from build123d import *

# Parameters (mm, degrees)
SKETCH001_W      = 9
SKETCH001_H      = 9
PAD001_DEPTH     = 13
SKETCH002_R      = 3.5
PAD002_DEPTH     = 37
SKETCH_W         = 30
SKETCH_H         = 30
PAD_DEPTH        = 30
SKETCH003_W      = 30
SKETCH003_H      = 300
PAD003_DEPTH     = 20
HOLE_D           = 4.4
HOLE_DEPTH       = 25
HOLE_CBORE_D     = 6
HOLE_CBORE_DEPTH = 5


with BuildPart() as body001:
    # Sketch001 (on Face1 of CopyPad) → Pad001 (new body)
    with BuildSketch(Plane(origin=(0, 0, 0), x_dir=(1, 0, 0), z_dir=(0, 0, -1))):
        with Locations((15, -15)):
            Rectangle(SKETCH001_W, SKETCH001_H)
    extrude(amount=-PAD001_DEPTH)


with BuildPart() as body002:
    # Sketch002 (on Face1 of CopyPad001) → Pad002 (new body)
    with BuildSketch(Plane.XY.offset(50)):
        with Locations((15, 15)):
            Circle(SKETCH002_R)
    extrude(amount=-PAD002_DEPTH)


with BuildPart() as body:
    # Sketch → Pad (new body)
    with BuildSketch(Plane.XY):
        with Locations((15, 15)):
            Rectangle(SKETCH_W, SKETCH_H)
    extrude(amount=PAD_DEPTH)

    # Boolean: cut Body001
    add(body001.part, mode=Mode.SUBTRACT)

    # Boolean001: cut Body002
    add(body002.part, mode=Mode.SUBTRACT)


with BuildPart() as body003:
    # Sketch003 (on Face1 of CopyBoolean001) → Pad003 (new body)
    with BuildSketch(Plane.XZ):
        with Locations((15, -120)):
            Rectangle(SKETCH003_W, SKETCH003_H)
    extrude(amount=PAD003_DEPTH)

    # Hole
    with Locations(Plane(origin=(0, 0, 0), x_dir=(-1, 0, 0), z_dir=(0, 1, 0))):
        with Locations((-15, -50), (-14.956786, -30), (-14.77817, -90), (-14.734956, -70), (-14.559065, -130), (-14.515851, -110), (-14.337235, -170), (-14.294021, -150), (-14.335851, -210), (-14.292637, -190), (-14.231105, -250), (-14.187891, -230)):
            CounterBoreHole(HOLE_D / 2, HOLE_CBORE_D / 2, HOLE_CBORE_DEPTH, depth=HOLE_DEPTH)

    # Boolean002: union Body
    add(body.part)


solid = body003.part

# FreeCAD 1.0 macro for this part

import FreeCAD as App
import Part
import Sketcher
Q = App.Units.Quantity


def add_polygon(sketch, points):
    """Adds a closed chain of lines whose ends are joined by coincident constraints."""
    first, n = sketch.GeometryCount, len(points)
    for a, b in zip(points, points[1:] + points[:1]):
        sketch.addGeometry(Part.LineSegment(App.Vector(*a, 0), App.Vector(*b, 0)), False)
    for i in range(n):
        sketch.addConstraint(Sketcher.Constraint("Coincident", first + i, 2, first + (i + 1) % n, 1))

doc = App.newDocument("Part")
body = doc.addObject("PartDesign::Body", "Body")

# Sketch on XY plane
sketch1 = doc.addObject("Sketcher::SketchObject", "Sketch")
body.addObject(sketch1)
sketch1.AttachmentSupport = (doc.XY_Plane, [""])
sketch1.MapMode = "FlatFace"
add_polygon(sketch1, [(10.5, 10.5), (10.5, 19.5), (19.5, 19.5), (19.5, 10.5)])  # lines 0-3
sketch1.addConstraint(Sketcher.Constraint("Vertical", 0))
sketch1.addConstraint(Sketcher.Constraint("Horizontal", 1))
sketch1.addConstraint(Sketcher.Constraint("Vertical", 2))
sketch1.addConstraint(Sketcher.Constraint("Horizontal", 3))
sketch1.addConstraint(Sketcher.Constraint("Equal", 3, 0))
sketch1.addConstraint(Sketcher.Constraint("DistanceX", 1, 1, 1, 2, Q("9 mm")))
sketch1.addConstraint(Sketcher.Constraint("DistanceX", -1, 1, 0, 2, Q("10.5 mm")))
sketch1.addConstraint(Sketcher.Constraint("DistanceY", -1, 1, 0, 2, Q("19.5 mm")))
pad1 = doc.addObject("PartDesign::Pad", "Pad")
body.addObject(pad1)
pad1.Profile = sketch1
pad1.Length = 13
body2 = doc.addObject("PartDesign::Body", "Body001")

# Sketch on XY plane
sketch2 = doc.addObject("Sketcher::SketchObject", "Sketch001")
body2.addObject(sketch2)
sketch2.AttachmentSupport = (doc.getObject("XY_Plane001"), [""])
sketch2.MapMode = "FlatFace"
sketch2.AttachmentOffset = App.Placement(App.Vector(0, 0, 50), App.Rotation())
sketch2.addGeometry(Part.Circle(App.Vector(15, 15, 0), App.Vector(0, 0, 1), 3.5), False)
sketch2.addConstraint(Sketcher.Constraint("Diameter", 0, Q("7 mm")))
sketch2.addConstraint(Sketcher.Constraint("DistanceX", -1, 1, 0, 3, Q("15 mm")))
sketch2.addConstraint(Sketcher.Constraint("DistanceY", -1, 1, 0, 3, Q("15 mm")))
pad2 = doc.addObject("PartDesign::Pad", "Pad001")
body2.addObject(pad2)
pad2.Profile = sketch2
pad2.Length = 37
pad2.Reversed = True
body3 = doc.addObject("PartDesign::Body", "Body002")

# Sketch on XY plane
sketch3 = doc.addObject("Sketcher::SketchObject", "Sketch002")
body3.addObject(sketch3)
sketch3.AttachmentSupport = (doc.getObject("XY_Plane002"), [""])
sketch3.MapMode = "FlatFace"
add_polygon(sketch3, [(0, 30), (0, 0), (30, 0), (30, 30)])  # lines 0-3
sketch3.addConstraint(Sketcher.Constraint("Vertical", 0))
sketch3.addConstraint(Sketcher.Constraint("Horizontal", 1))
sketch3.addConstraint(Sketcher.Constraint("Vertical", 2))
sketch3.addConstraint(Sketcher.Constraint("Horizontal", 3))
sketch3.addConstraint(Sketcher.Constraint("Coincident", 0, 2, -1, 1))
sketch3.addConstraint(Sketcher.Constraint("Equal", 3, 0))
sketch3.addConstraint(Sketcher.Constraint("DistanceX", 1, 1, 1, 2, Q("30 mm")))
pad3 = doc.addObject("PartDesign::Pad", "Pad002")
body3.addObject(pad3)
pad3.Profile = sketch3
pad3.Length = 30
doc.recompute()

boolean = doc.addObject("PartDesign::Boolean", "Boolean")
body3.addObject(boolean)
boolean.Type = "Cut"
boolean.addObjects([body])
doc.recompute()

boolean2 = doc.addObject("PartDesign::Boolean", "Boolean001")
body3.addObject(boolean2)
boolean2.Type = "Cut"
boolean2.addObjects([body2])
body4 = doc.addObject("PartDesign::Body", "Body003")

# Sketch on XZ plane
sketch4 = doc.addObject("Sketcher::SketchObject", "Sketch003")
body4.addObject(sketch4)
sketch4.AttachmentSupport = (doc.getObject("XZ_Plane003"), [""])
sketch4.MapMode = "FlatFace"
add_polygon(sketch4, [(0, 30), (0, -270), (30, -270), (30, 30)])  # lines 0-3
sketch4.addConstraint(Sketcher.Constraint("Vertical", 0))
sketch4.addConstraint(Sketcher.Constraint("Horizontal", 1))
sketch4.addConstraint(Sketcher.Constraint("Vertical", 2))
sketch4.addConstraint(Sketcher.Constraint("Horizontal", 3))
sketch4.addConstraint(Sketcher.Constraint("PointOnObject", 0, 2, -2))
sketch4.addConstraint(Sketcher.Constraint("DistanceX", 1, 1, 1, 2, Q("30 mm")))
sketch4.addConstraint(Sketcher.Constraint("DistanceY", 0, 2, 0, 1, Q("300 mm")))
sketch4.addConstraint(Sketcher.Constraint("DistanceY", 0, 2, -1, 1, Q("270 mm")))
pad4 = doc.addObject("PartDesign::Pad", "Pad003")
body4.addObject(pad4)
pad4.Profile = sketch4
pad4.Length = 20

# Sketch on XZ plane
sketch5 = doc.addObject("Sketcher::SketchObject", "Sketch004")
body4.addObject(sketch5)
sketch5.AttachmentSupport = (doc.getObject("XZ_Plane003"), [""])
sketch5.MapMode = "FlatFace"
sketch5.addGeometry(Part.Circle(App.Vector(15, -50, 0), App.Vector(0, 0, 1), 2.2), False)
sketch5.addGeometry(Part.Circle(App.Vector(14.956786, -30, 0), App.Vector(0, 0, 1), 2.2), False)
sketch5.addGeometry(Part.Circle(App.Vector(14.77817, -90, 0), App.Vector(0, 0, 1), 2.2), False)
sketch5.addGeometry(Part.Circle(App.Vector(14.734956, -70, 0), App.Vector(0, 0, 1), 2.2), False)
sketch5.addGeometry(Part.Circle(App.Vector(14.559065, -130, 0), App.Vector(0, 0, 1), 2.2), False)
sketch5.addGeometry(Part.Circle(App.Vector(14.515851, -110, 0), App.Vector(0, 0, 1), 2.2), False)
sketch5.addGeometry(Part.Circle(App.Vector(14.337235, -170, 0), App.Vector(0, 0, 1), 2.2), False)
sketch5.addGeometry(Part.Circle(App.Vector(14.294021, -150, 0), App.Vector(0, 0, 1), 2.2), False)
sketch5.addGeometry(Part.Circle(App.Vector(14.335851, -210, 0), App.Vector(0, 0, 1), 2.2), False)
sketch5.addGeometry(Part.Circle(App.Vector(14.292637, -190, 0), App.Vector(0, 0, 1), 2.2), False)
sketch5.addGeometry(Part.Circle(App.Vector(14.231105, -250, 0), App.Vector(0, 0, 1), 2.2), False)
sketch5.addGeometry(Part.Circle(App.Vector(14.187891, -230, 0), App.Vector(0, 0, 1), 2.2), False)
sketch5.addConstraint(Sketcher.Constraint("Equal", 0, 1))
sketch5.addConstraint(Sketcher.Constraint("Equal", 1, 2))
sketch5.addConstraint(Sketcher.Constraint("Equal", 2, 3))
sketch5.addConstraint(Sketcher.Constraint("Equal", 3, 4))
sketch5.addConstraint(Sketcher.Constraint("Equal", 4, 5))
sketch5.addConstraint(Sketcher.Constraint("Equal", 5, 6))
sketch5.addConstraint(Sketcher.Constraint("Equal", 6, 7))
sketch5.addConstraint(Sketcher.Constraint("Equal", 7, 8))
sketch5.addConstraint(Sketcher.Constraint("Equal", 8, 9))
sketch5.addConstraint(Sketcher.Constraint("Equal", 9, 10))
sketch5.addConstraint(Sketcher.Constraint("Equal", 10, 11))
sketch5.addConstraint(Sketcher.Constraint("Diameter", 0, Q("4.4 mm")))
sketch5.addConstraint(Sketcher.Constraint("DistanceX", -1, 1, 0, 3, Q("15 mm")))
sketch5.addConstraint(Sketcher.Constraint("DistanceY", 0, 3, -1, 1, Q("50 mm")))
sketch5.addConstraint(Sketcher.Constraint("DistanceY", 1, 3, -1, 1, Q("30 mm")))
sketch5.addConstraint(Sketcher.Constraint("DistanceY", 2, 3, -1, 1, Q("90 mm")))
sketch5.addConstraint(Sketcher.Constraint("DistanceY", 3, 3, -1, 1, Q("70 mm")))
sketch5.addConstraint(Sketcher.Constraint("DistanceY", 4, 3, -1, 1, Q("130 mm")))
sketch5.addConstraint(Sketcher.Constraint("DistanceY", 5, 3, -1, 1, Q("110 mm")))
sketch5.addConstraint(Sketcher.Constraint("DistanceY", 6, 3, -1, 1, Q("170 mm")))
sketch5.addConstraint(Sketcher.Constraint("DistanceY", 7, 3, -1, 1, Q("150 mm")))
sketch5.addConstraint(Sketcher.Constraint("DistanceY", 8, 3, -1, 1, Q("210 mm")))
sketch5.addConstraint(Sketcher.Constraint("DistanceY", 9, 3, -1, 1, Q("190 mm")))
sketch5.addConstraint(Sketcher.Constraint("DistanceY", 10, 3, -1, 1, Q("250 mm")))
sketch5.addConstraint(Sketcher.Constraint("DistanceY", 11, 3, -1, 1, Q("230 mm")))
sketch5.addConstraint(Sketcher.Constraint("DistanceX", 8, 3, 5, 3, Q("0.18 mm")))
sketch5.addConstraint(Sketcher.Constraint("DistanceX", 9, 3, 6, 3, Q("0.044598 mm")))
sketch5.addConstraint(Sketcher.Constraint("DistanceX", -1, 1, 2, 3, Q("14.77817 mm")))
sketch5.addConstraint(Sketcher.Constraint("DistanceX", -1, 1, 5, 3, Q("14.515851 mm")))
sketch5.addConstraint(Sketcher.Constraint("DistanceX", -1, 1, 7, 3, Q("14.294021 mm")))
sketch5.addConstraint(Sketcher.Constraint("DistanceX", -1, 1, 11, 3, Q("14.187891 mm")))
sketch5.addConstraint(Sketcher.Constraint("DistanceX", 3, 3, 1, 3, Q("0.22183 mm")))
sketch5.addConstraint(Sketcher.Constraint("DistanceX", 4, 3, 3, 3, Q("0.175891 mm")))
sketch5.addConstraint(Sketcher.Constraint("DistanceX", 6, 3, 4, 3, Q("0.22183 mm")))
sketch5.addConstraint(Sketcher.Constraint("DistanceX", 10, 3, 9, 3, Q("0.061532 mm")))
sketch5.addConstraint(Sketcher.Constraint("DistanceX", -1, 1, 1, 3, Q("14.956786 mm")))
doc.recompute()
hole = doc.addObject("PartDesign::Hole", "Hole")
body4.addObject(hole)
hole.Profile = sketch5
hole.ThreadType = "None"
hole.Diameter = 4.4
hole.DepthType = "Dimension"
hole.Depth = 25
hole.DrillPoint = "Flat"
hole.HoleCutType = "Counterbore"
hole.HoleCutDiameter = 6
hole.HoleCutDepth = 5
hole.Reversed = True
doc.recompute()

boolean3 = doc.addObject("PartDesign::Boolean", "Boolean002")
body4.addObject(boolean3)
boolean3.Type = "Fuse"
boolean3.addObjects([body3])

doc.recompute()
